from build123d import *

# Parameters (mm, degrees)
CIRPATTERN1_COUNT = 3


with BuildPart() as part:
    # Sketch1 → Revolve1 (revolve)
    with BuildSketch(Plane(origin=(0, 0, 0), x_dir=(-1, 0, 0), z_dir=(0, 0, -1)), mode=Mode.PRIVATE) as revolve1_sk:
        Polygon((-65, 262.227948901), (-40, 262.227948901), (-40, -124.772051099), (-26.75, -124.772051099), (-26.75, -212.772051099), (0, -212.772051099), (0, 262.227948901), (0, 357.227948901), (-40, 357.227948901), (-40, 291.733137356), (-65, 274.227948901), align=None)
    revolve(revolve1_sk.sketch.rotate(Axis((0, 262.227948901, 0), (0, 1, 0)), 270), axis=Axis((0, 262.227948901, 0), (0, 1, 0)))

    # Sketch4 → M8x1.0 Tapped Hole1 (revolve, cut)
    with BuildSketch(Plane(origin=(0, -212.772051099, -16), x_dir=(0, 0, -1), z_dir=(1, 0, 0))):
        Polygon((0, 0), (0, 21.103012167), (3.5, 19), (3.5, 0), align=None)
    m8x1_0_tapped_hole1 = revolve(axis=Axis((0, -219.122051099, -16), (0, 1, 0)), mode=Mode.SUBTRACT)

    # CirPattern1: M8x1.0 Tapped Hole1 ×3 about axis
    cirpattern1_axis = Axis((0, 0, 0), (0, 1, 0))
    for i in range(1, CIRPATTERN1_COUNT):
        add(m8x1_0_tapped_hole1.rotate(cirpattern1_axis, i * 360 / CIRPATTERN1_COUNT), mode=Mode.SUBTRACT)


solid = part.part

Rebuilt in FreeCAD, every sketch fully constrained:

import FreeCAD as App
import Part
import Sketcher
from FreeCAD import Vector
Q = App.Units.Quantity

doc = App.newDocument("Part")
body = doc.addObject("PartDesign::Body", "Body")

# Sketch on XY plane
sketch1 = body.newObject("Sketcher::SketchObject", "Sketch")
sketch1.AttachmentSupport = (doc.getObject("XY_Plane"), [""])
sketch1.MapMode = "FlatFace"
sketch1.addGeometry(Part.LineSegment(Vector(65, 262, 0), Vector(40, 262, 0)), False)
sketch1.addGeometry(Part.LineSegment(Vector(40, 262, 0), Vector(40, -125, 0)), False)
sketch1.addGeometry(Part.LineSegment(Vector(40, -125, 0), Vector(27, -125, 0)), False)
sketch1.addGeometry(Part.LineSegment(Vector(27, -125, 0), Vector(27, -213, 0)), False)
sketch1.addGeometry(Part.LineSegment(Vector(27, -213, 0), Vector(0, -213, 0)), False)
sketch1.addGeometry(Part.LineSegment(Vector(0, -213, 0), Vector(0, 357, 0)), False)
sketch1.addGeometry(Part.LineSegment(Vector(0, 357, 0), Vector(40, 357, 0)), False)
sketch1.addGeometry(Part.LineSegment(Vector(40, 357, 0), Vector(40, 292, 0)), False)
sketch1.addGeometry(Part.LineSegment(Vector(40, 292, 0), Vector(65, 274, 0)), False)
sketch1.addGeometry(Part.LineSegment(Vector(65, 274, 0), Vector(65, 262, 0)), False)
sketch1.addConstraint(Sketcher.Constraint("Coincident", 0, 2, 1, 1))
sketch1.addConstraint(Sketcher.Constraint("Coincident", 1, 2, 2, 1))
sketch1.addConstraint(Sketcher.Constraint("Coincident", 2, 2, 3, 1))
sketch1.addConstraint(Sketcher.Constraint("Coincident", 3, 2, 4, 1))
sketch1.addConstraint(Sketcher.Constraint("Coincident", 4, 2, 5, 1))
sketch1.addConstraint(Sketcher.Constraint("Coincident", 5, 2, 6, 1))
sketch1.addConstraint(Sketcher.Constraint("Coincident", 6, 2, 7, 1))
sketch1.addConstraint(Sketcher.Constraint("Coincident", 7, 2, 8, 1))
sketch1.addConstraint(Sketcher.Constraint("Coincident", 8, 2, 9, 1))
sketch1.addConstraint(Sketcher.Constraint("Coincident", 9, 2, 0, 1))
sketch1.addConstraint(Sketcher.Constraint("Horizontal", 0))
sketch1.addConstraint(Sketcher.Constraint("Vertical", 1))
sketch1.addConstraint(Sketcher.Constraint("Horizontal", 2))
sketch1.addConstraint(Sketcher.Constraint("Vertical", 3))
sketch1.addConstraint(Sketcher.Constraint("Horizontal", 4))
sketch1.addConstraint(Sketcher.Constraint("Vertical", 5))
sketch1.addConstraint(Sketcher.Constraint("Horizontal", 6))
sketch1.addConstraint(Sketcher.Constraint("Vertical", 7))
sketch1.addConstraint(Sketcher.Constraint("Vertical", 9))
sketch1.addConstraint(Sketcher.Constraint("PointOnObject", 4, 2, -2))
sketch1.addConstraint(Sketcher.Constraint("Vertical", 1, 2, 6, 2))
sketch1.addConstraint(Sketcher.Constraint("DistanceX", 0, 2, 0, 1, 25.0))
sketch1.addConstraint(Sketcher.Constraint("DistanceX", 6, 1, 6, 2, 40.0))
sketch1.addConstraint(Sketcher.Constraint("DistanceY", 1, 2, 1, 1, 387.0))
sketch1.addConstraint(Sketcher.Constraint("DistanceY", 3, 2, 3, 1, 88.0))
sketch1.addConstraint(Sketcher.Constraint("DistanceY", 5, 1, 5, 2, 570.0))
sketch1.addConstraint(Sketcher.Constraint("DistanceY", 9, 2, 9, 1, 12.0))
sketch1.addConstraint(Sketcher.Constraint("Angle", 8, Q("-35 deg")))
sketch1.addConstraint(Sketcher.Constraint("DistanceX", 2, 2, 2, 1, 13.25))
sketch1.addConstraint(Sketcher.Constraint("DistanceY", -1, 1, 0, 2, 262.227949))
revolution = body.newObject("PartDesign::Revolution", "Revolution")
revolution.Profile = sketch1
revolution.ReferenceAxis = (sketch1, ["V_Axis"])
revolution.Angle = 360

# Sketch on YZ plane
sketch2 = body.newObject("Sketcher::SketchObject", "Sketch001")
sketch2.AttachmentSupport = (doc.getObject("YZ_Plane"), [""])
sketch2.MapMode = "FlatFace"
sketch2.addGeometry(Part.LineSegment(Vector(-191.7, -16, 0), Vector(-212.8, -16, 0)), False)
sketch2.addGeometry(Part.LineSegment(Vector(-212.8, -16, 0), Vector(-212.8, -19.5, 0)), False)
sketch2.addGeometry(Part.LineSegment(Vector(-212.8, -19.5, 0), Vector(-193.8, -19.5, 0)), False)
sketch2.addGeometry(Part.LineSegment(Vector(-193.8, -19.5, 0), Vector(-191.7, -16, 0)), False)
sketch2.addGeometry(Part.LineSegment(Vector(-212.8, -16, 0), Vector(-191.7, -16, 0)), True)  # axis
sketch2.addConstraint(Sketcher.Constraint("Coincident", 0, 2, 1, 1))
sketch2.addConstraint(Sketcher.Constraint("Coincident", 1, 2, 2, 1))
sketch2.addConstraint(Sketcher.Constraint("Coincident", 2, 2, 3, 1))
sketch2.addConstraint(Sketcher.Constraint("Coincident", 3, 2, 0, 1))
sketch2.addConstraint(Sketcher.Constraint("Horizontal", 0))
sketch2.addConstraint(Sketcher.Constraint("Vertical", 1))
sketch2.addConstraint(Sketcher.Constraint("Horizontal", 2))
sketch2.addConstraint(Sketcher.Constraint("Horizontal", 4))
sketch2.addConstraint(Sketcher.Constraint("Coincident", 4, 1, 0, 2))
sketch2.addConstraint(Sketcher.Constraint("Equal", 0, 4))
sketch2.addConstraint(Sketcher.Constraint("DistanceX", 2, 1, 2, 2, 19.0))
sketch2.addConstraint(Sketcher.Constraint("Angle", 3, Q("59 deg")))
sketch2.addConstraint(Sketcher.Constraint("DistanceY", 1, 2, 1, 1, 3.5))
sketch2.addConstraint(Sketcher.Constraint("DistanceY", 0, 2, -1, 1, 16.0))
sketch2.addConstraint(Sketcher.Constraint("DistanceX", 0, 2, -1, 1, 212.772051))
groove = body.newObject("PartDesign::Groove", "Groove")
groove.Profile = sketch2
groove.ReferenceAxis = (sketch2, ["Axis0"])
groove.Angle = 360
doc.recompute()

polarpattern = body.newObject("PartDesign::PolarPattern", "PolarPattern")
polarpattern.Originals = [groove]
polarpattern.Axis = (doc.getObject("Y_Axis"), [""])
polarpattern.Angle = 360
polarpattern.Occurrences = 3
body.Tip = polarpattern

doc.recompute()
